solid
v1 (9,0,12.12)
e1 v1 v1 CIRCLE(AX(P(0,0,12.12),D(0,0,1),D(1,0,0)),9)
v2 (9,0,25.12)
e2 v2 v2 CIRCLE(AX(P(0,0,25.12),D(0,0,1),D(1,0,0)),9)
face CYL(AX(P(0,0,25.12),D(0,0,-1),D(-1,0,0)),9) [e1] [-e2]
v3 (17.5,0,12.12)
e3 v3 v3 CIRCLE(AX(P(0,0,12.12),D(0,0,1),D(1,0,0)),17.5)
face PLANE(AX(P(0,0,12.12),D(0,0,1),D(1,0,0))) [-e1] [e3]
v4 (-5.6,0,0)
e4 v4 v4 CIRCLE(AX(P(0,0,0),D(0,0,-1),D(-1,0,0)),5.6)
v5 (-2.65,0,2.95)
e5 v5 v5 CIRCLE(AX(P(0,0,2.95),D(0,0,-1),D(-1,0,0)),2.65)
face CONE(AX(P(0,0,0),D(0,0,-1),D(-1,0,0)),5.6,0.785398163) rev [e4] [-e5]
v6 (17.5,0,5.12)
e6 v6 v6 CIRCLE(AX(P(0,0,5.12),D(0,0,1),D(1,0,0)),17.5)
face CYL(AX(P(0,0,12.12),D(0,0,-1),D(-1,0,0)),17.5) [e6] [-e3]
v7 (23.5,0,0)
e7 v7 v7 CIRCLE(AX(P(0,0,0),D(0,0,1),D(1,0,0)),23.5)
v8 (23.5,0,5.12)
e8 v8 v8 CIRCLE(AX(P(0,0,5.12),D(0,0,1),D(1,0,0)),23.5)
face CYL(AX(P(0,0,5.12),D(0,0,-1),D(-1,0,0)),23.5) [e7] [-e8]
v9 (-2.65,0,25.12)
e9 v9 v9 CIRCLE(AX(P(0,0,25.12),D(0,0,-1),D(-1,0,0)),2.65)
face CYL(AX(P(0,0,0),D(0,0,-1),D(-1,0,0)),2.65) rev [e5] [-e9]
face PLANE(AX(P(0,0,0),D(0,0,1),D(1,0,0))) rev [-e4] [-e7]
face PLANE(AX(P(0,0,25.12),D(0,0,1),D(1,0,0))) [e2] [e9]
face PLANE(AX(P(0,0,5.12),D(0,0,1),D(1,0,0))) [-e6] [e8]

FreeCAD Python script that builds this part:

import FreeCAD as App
import Part
import Sketcher

V = App.Vector
Q = App.Units.Quantity

doc = App.newDocument("Part")
params = doc.addObject("Spreadsheet::Sheet", "Params")
for row, (alias, value) in enumerate([
    ("sketch1_diameter", "47 mm"),
    ("pad1_length", "5.12 mm"),
    ("sketch2_diameter", "35 mm"),
    ("pad2_length", "7 mm"),
    ("sketch3_diameter", "18 mm"),
    ("pad3_length", "13 mm"),
    ("sketch4_diameter", "5.3 mm"),
    ("hole_diameter", "5.3 mm"),
    ("hole_csink_diameter", "11.2 mm"),
], start=1):
    params.set(f"A{row}", alias)
    params.set(f"B{row}", "=" + value)
    params.setAlias(f"B{row}", alias)

body = doc.addObject("PartDesign::Body", "Body")

# Sketch on XY plane
sketch1 = body.newObject("Sketcher::SketchObject", "Sketch")
sketch1.AttachmentSupport = (doc.getObject("XY_Plane"), [""])
sketch1.MapMode = "FlatFace"
sketch1.addGeometry(Part.Circle(V(0, 0, 0), V(0, 0, 1), 24), False)
sketch1.addConstraint([
    Sketcher.Constraint("Coincident", 0, 3, -1, 1),
    Sketcher.Constraint("Diameter", 0, Q("47 mm")),
])
sketch1.setExpression("Constraints[1]", "Params.sketch1_diameter")
pad1 = body.newObject("PartDesign::Pad", "Pad")
pad1.Profile = sketch1
pad1.setExpression("Length", "Params.pad1_length")

# Sketch on XY plane
sketch2 = body.newObject("Sketcher::SketchObject", "Sketch001")
sketch2.AttachmentSupport = (doc.getObject("XY_Plane"), [""])
sketch2.MapMode = "FlatFace"
sketch2.AttachmentOffset = App.Placement(V(0, 0, 5.12), App.Rotation())
sketch2.addGeometry(Part.Circle(V(0, 0, 0), V(0, 0, 1), 18), False)
sketch2.addConstraint([
    Sketcher.Constraint("Coincident", 0, 3, -1, 1),
    Sketcher.Constraint("Diameter", 0, Q("35 mm")),
])
sketch2.setExpression("Constraints[1]", "Params.sketch2_diameter")
pad2 = body.newObject("PartDesign::Pad", "Pad001")
pad2.Profile = sketch2
pad2.setExpression("Length", "Params.pad2_length")

# Sketch on XY plane
sketch3 = body.newObject("Sketcher::SketchObject", "Sketch002")
sketch3.AttachmentSupport = (doc.getObject("XY_Plane"), [""])
sketch3.MapMode = "FlatFace"
sketch3.AttachmentOffset = App.Placement(V(0, 0, 12.12), App.Rotation())
sketch3.addGeometry(Part.Circle(V(0, 0, 0), V(0, 0, 1), 9), False)
sketch3.addConstraint([
    Sketcher.Constraint("Coincident", 0, 3, -1, 1),
    Sketcher.Constraint("Diameter", 0, Q("18 mm")),
])
sketch3.setExpression("Constraints[1]", "Params.sketch3_diameter")
pad3 = body.newObject("PartDesign::Pad", "Pad002")
pad3.Profile = sketch3
pad3.setExpression("Length", "Params.pad3_length")

# Sketch on XY plane
sketch4 = body.newObject("Sketcher::SketchObject", "Sketch003")
sketch4.AttachmentSupport = (doc.getObject("XY_Plane"), [""])
sketch4.MapMode = "FlatFace"
sketch4.addGeometry(Part.Circle(V(0, 0, 0), V(0, 0, 1), 2.6), False)
sketch4.addConstraint([
    Sketcher.Constraint("Coincident", 0, 3, -1, 1),
    Sketcher.Constraint("Diameter", 0, Q("5.3 mm")),
])
sketch4.setExpression("Constraints[1]", "Params.sketch4_diameter")
doc.recompute()
hole = body.newObject("PartDesign::Hole", "Hole")
hole.Profile = sketch4
hole.ThreadType = "None"
hole.setExpression("Diameter", "Params.hole_diameter")
hole.DepthType = "ThroughAll"
hole.HoleCutType = "Countersink"
hole.setExpression("HoleCutDiameter", "Params.hole_csink_diameter")
hole.HoleCutCountersinkAngle = 90
hole.Reversed = True

doc.recompute()
